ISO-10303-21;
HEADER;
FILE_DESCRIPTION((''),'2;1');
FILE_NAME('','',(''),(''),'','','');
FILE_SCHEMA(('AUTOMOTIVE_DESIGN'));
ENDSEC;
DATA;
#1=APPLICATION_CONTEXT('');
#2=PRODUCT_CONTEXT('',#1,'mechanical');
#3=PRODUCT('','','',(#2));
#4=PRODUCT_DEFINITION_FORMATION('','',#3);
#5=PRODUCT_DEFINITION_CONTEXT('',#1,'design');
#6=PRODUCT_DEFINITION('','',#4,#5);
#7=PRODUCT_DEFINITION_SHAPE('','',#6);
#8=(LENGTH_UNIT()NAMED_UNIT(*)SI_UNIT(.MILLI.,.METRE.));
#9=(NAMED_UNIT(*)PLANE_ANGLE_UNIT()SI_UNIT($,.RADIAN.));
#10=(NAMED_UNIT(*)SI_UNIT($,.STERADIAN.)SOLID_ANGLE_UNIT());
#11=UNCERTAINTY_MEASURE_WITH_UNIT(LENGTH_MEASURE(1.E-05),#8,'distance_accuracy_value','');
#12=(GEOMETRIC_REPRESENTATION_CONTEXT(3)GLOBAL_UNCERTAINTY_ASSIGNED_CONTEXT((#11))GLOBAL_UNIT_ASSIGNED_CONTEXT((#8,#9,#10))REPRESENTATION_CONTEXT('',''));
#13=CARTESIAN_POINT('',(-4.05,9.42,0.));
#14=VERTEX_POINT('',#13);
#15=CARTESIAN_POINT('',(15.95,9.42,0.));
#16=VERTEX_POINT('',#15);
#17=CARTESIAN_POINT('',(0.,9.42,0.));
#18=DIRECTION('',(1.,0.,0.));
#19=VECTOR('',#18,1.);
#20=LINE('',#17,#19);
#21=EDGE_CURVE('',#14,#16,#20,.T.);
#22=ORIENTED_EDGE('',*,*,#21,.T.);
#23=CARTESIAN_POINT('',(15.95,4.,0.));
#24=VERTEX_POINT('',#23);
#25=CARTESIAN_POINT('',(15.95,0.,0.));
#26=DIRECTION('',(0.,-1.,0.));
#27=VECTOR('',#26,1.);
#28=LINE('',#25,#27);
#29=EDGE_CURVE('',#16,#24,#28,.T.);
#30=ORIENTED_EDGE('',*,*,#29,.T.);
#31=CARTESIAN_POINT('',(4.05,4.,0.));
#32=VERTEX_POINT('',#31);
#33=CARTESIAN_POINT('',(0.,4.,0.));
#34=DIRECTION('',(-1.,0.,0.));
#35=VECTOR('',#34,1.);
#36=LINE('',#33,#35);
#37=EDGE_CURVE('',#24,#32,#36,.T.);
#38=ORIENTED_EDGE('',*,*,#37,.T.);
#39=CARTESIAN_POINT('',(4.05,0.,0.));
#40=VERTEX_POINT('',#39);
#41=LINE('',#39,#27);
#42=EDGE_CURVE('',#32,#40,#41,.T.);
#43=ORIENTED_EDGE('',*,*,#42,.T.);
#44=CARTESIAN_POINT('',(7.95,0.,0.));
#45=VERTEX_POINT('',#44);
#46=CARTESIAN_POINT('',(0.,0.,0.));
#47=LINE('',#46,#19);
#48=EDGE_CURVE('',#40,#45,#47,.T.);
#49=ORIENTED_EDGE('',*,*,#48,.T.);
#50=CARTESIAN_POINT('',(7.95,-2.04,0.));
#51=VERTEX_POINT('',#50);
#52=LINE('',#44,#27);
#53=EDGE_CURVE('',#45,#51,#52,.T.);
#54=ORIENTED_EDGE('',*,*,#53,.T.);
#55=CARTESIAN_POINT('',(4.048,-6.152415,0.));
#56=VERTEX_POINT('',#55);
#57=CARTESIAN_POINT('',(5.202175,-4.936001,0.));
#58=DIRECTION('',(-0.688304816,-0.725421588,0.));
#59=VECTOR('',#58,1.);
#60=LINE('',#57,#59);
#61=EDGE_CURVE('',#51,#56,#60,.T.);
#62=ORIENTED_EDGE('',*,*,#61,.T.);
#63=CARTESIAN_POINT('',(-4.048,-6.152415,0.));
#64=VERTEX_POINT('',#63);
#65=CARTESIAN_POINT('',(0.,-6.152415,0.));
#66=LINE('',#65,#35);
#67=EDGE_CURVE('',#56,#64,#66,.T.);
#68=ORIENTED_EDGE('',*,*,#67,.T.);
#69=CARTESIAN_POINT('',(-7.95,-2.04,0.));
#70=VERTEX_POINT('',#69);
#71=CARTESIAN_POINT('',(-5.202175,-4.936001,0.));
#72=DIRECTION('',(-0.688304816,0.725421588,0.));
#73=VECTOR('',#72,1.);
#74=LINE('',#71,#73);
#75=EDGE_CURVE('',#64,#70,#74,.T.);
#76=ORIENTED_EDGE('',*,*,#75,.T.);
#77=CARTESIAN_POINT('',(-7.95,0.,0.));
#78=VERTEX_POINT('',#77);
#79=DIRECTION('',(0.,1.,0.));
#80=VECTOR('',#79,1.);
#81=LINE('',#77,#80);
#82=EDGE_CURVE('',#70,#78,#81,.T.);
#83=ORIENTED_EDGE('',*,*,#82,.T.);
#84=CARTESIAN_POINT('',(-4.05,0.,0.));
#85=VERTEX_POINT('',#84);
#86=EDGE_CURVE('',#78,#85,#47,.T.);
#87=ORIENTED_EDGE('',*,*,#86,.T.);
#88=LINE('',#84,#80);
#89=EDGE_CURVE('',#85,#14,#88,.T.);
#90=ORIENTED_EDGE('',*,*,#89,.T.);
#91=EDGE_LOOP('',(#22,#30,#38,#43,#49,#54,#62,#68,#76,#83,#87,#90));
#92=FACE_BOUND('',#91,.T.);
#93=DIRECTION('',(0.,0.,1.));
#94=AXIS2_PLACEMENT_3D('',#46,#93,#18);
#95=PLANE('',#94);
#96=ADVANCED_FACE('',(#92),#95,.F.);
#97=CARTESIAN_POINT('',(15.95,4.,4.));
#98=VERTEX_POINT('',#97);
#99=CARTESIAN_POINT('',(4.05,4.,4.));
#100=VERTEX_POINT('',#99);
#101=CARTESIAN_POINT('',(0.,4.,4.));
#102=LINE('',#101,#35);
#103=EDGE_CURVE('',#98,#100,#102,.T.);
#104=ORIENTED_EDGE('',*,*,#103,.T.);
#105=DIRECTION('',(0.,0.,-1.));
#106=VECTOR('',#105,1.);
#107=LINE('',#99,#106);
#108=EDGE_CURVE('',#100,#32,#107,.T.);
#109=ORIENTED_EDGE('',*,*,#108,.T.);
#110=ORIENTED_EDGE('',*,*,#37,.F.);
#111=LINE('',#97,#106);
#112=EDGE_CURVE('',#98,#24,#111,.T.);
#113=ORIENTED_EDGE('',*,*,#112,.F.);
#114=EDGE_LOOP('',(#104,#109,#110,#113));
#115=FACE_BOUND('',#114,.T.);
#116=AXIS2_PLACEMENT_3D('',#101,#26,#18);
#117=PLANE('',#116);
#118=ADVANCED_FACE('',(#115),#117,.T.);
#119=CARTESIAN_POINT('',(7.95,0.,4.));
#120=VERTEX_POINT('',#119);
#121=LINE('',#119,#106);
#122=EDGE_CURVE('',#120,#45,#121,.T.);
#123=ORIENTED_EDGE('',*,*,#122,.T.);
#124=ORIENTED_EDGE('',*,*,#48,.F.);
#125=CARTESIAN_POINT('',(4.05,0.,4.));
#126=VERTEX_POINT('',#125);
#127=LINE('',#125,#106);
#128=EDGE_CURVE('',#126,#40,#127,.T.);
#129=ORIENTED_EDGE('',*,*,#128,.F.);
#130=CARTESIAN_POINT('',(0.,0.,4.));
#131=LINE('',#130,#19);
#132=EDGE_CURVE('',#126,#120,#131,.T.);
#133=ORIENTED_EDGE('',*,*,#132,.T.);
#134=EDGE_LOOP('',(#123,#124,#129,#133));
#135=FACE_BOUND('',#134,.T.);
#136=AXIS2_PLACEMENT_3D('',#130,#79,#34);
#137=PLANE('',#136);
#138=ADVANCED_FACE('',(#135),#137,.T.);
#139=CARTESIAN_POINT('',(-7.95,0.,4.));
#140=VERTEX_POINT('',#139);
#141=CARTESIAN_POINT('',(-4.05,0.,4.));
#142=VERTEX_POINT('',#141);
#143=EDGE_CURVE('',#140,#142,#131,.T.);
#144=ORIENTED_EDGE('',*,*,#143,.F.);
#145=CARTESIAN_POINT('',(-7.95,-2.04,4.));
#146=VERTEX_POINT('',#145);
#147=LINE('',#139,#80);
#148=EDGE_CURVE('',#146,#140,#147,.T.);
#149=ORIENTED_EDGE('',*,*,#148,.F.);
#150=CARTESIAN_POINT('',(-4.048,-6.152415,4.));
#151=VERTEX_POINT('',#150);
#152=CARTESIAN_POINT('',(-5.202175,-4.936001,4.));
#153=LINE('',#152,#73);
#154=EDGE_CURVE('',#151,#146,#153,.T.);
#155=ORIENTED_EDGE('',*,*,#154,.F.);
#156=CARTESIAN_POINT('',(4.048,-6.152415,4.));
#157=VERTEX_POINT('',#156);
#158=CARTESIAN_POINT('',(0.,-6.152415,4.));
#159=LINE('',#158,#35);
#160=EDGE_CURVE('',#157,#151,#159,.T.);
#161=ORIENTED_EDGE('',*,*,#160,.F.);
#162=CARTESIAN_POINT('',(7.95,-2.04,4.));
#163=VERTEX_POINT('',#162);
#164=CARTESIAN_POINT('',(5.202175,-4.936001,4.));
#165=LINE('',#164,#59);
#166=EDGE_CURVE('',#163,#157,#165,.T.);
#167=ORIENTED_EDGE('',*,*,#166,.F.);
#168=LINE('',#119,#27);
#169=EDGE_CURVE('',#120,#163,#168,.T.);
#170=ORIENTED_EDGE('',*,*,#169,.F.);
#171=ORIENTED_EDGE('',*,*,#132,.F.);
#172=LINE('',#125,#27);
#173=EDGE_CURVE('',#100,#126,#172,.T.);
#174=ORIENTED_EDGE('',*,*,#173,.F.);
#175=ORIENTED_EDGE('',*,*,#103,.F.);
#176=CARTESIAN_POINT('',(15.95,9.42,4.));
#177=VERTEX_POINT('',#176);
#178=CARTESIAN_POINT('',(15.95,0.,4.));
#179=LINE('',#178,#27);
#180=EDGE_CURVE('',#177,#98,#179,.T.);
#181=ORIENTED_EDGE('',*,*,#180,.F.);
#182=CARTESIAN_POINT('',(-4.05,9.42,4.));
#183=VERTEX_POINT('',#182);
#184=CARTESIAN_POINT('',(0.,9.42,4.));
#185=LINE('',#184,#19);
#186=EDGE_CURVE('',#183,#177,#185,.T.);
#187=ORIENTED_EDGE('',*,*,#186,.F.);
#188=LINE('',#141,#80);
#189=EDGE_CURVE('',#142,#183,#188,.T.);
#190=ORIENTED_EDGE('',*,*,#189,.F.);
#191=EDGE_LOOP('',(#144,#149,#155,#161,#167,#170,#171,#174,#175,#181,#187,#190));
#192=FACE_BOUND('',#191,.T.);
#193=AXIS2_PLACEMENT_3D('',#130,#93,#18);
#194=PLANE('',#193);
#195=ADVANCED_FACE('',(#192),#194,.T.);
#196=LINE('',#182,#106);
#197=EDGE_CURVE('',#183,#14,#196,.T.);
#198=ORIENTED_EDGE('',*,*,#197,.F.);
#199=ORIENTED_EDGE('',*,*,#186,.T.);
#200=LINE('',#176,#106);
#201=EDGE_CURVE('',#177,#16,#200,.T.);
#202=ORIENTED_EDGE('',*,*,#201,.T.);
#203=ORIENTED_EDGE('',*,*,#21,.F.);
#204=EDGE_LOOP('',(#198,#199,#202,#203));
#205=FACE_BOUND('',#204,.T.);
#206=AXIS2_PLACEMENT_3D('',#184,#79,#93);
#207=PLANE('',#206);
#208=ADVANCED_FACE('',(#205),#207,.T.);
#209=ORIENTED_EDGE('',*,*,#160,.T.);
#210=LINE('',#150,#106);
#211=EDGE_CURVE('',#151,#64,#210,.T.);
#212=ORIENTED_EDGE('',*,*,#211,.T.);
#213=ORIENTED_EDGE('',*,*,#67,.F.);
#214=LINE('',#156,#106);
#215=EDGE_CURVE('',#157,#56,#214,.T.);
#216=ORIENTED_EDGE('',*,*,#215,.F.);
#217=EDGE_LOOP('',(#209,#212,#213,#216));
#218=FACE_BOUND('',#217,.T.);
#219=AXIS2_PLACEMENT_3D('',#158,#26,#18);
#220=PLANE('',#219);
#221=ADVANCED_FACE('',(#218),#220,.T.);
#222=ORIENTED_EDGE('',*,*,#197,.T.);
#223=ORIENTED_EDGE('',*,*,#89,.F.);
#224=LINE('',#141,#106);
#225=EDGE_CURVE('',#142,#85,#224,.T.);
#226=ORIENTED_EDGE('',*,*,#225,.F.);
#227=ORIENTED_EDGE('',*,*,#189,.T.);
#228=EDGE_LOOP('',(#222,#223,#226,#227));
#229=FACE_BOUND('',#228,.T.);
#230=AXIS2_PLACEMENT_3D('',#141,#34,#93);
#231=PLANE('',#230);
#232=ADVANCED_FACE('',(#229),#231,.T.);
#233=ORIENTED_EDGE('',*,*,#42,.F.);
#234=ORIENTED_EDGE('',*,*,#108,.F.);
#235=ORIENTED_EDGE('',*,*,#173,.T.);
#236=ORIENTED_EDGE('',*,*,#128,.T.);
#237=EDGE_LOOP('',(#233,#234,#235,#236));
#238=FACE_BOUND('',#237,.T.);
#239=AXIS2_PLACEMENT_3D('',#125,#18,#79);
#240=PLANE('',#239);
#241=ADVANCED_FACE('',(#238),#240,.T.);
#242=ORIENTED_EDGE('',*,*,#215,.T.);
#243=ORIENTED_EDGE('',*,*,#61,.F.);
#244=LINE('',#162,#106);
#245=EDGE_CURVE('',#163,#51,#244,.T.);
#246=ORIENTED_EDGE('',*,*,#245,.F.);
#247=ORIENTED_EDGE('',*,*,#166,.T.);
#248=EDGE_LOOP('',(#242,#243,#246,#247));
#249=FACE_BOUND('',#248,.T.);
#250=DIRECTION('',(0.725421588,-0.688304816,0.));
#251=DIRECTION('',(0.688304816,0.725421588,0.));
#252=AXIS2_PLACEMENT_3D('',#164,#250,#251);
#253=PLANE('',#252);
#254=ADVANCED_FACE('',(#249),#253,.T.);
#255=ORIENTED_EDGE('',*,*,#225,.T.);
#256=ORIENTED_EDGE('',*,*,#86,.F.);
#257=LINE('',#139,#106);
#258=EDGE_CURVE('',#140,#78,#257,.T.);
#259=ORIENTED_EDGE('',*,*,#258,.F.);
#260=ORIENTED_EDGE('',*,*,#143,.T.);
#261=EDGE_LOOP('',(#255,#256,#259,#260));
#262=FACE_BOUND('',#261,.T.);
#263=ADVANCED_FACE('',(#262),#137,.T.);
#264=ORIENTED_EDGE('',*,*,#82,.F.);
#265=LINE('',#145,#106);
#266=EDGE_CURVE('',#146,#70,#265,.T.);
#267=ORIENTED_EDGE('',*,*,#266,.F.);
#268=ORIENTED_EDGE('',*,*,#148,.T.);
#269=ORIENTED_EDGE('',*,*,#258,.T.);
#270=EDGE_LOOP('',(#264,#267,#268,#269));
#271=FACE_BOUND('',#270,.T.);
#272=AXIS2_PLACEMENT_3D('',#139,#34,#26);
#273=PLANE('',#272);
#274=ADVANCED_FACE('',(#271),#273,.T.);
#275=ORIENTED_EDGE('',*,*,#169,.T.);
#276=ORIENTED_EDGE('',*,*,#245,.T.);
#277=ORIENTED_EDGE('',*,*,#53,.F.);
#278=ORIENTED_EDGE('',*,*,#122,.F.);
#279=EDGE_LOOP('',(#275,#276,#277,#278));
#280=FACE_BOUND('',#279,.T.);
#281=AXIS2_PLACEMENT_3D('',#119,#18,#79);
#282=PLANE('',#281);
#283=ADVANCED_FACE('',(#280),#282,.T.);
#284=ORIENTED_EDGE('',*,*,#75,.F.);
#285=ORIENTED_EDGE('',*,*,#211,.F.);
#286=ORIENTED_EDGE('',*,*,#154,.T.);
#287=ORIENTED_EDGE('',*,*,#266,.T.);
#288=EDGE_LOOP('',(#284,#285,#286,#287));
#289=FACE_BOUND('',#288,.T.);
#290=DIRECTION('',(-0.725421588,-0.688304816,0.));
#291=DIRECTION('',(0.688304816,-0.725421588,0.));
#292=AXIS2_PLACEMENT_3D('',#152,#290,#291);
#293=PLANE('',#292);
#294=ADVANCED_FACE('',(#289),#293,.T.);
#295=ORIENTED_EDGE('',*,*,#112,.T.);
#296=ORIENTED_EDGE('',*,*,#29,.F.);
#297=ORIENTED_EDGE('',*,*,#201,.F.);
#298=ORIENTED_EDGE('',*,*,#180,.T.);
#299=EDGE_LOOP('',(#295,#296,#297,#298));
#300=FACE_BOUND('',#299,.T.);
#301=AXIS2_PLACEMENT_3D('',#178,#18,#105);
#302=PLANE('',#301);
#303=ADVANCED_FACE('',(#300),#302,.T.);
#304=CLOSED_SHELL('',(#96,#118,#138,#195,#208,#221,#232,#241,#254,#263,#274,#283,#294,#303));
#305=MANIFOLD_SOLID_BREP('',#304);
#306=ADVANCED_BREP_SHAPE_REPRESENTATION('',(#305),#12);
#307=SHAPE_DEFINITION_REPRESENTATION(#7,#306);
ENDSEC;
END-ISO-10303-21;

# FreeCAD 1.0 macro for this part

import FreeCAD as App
import Part
import Sketcher
from FreeCAD import Vector
Q = App.Units.Quantity


def add_polygon(sketch, points):
    """Adds a closed chain of lines whose ends are joined by coincident constraints."""
    first, n = sketch.GeometryCount, len(points)
    for a, b in zip(points, points[1:] + points[:1]):
        sketch.addGeometry(Part.LineSegment(App.Vector(*a, 0), App.Vector(*b, 0)), False)
    for i in range(n):
        sketch.addConstraint(Sketcher.Constraint("Coincident", first + i, 2, first + (i + 1) % n, 1))

doc = App.newDocument("Part")
params = doc.addObject("Spreadsheet::Sheet", "Params")
for row, (alias, value) in enumerate([
    ("sketch1_width", "20 mm"),
    ("sketch1_height", "4 mm"),
    ("sketch1_width2", "3.9 mm"),
    ("sketch1_width3", "11.9 mm"),
    ("sketch1_height2", "2.04 mm"),
    ("pad1_length", "4 mm"),
], start=1):
    params.set(f"A{row}", alias)
    params.set(f"B{row}", "=" + value)
    params.setAlias(f"B{row}", alias)

body = doc.addObject("PartDesign::Body", "Body")

# Sketch on XY plane
sketch1 = doc.addObject("Sketcher::SketchObject", "Sketch")
body.addObject(sketch1)
sketch1.AttachmentSupport = (doc.XY_Plane, [""])
sketch1.MapMode = "FlatFace"
add_polygon(sketch1, [(-8, 0), (-8, -2), (-4, -6.2), (4, -6.2), (8, -2), (8, 0), (4, 0), (4, 4), (15.9, 4), (15.9, 9.4), (-4, 9.4), (-4, 0)])  # lines 0-11
sketch1.addConstraint(Sketcher.Constraint("Vertical", 0))
sketch1.addConstraint(Sketcher.Constraint("Horizontal", 2))
sketch1.addConstraint(Sketcher.Constraint("Vertical", 4))
sketch1.addConstraint(Sketcher.Constraint("Horizontal", 5))
sketch1.addConstraint(Sketcher.Constraint("Vertical", 6))
sketch1.addConstraint(Sketcher.Constraint("Horizontal", 7))
sketch1.addConstraint(Sketcher.Constraint("Vertical", 8))
sketch1.addConstraint(Sketcher.Constraint("Horizontal", 9))
sketch1.addConstraint(Sketcher.Constraint("Vertical", 10))
sketch1.addConstraint(Sketcher.Constraint("Horizontal", 11))
sketch1.addConstraint(Sketcher.Constraint("Symmetric", 5, 2, 10, 2, -1, 1))
sketch1.addConstraint(Sketcher.Constraint("Symmetric", 0, 2, 3, 2, -2))
sketch1.addConstraint(Sketcher.Constraint("PointOnObject", 4, 2, -1))
sketch1.addConstraint(Sketcher.Constraint("Equal", 1, 3))
sketch1.addConstraint(Sketcher.Constraint("DistanceX", 9, 2, 9, 1, Q("20 mm")))
sketch1.addConstraint(Sketcher.Constraint("DistanceY", 6, 1, 6, 2, Q("4 mm")))
sketch1.addConstraint(Sketcher.Constraint("DistanceX", 5, 2, 5, 1, Q("3.9 mm")))
sketch1.addConstraint(Sketcher.Constraint("DistanceX", 7, 1, 7, 2, Q("11.9 mm")))
sketch1.addConstraint(Sketcher.Constraint("DistanceY", 0, 2, 0, 1, Q("2.04 mm")))
sketch1.addConstraint(Sketcher.Constraint("DistanceY", 8, 1, 8, 2, Q("5.42 mm")))
sketch1.addConstraint(Sketcher.Constraint("DistanceX", 2, 1, 2, 2, Q("8.096 mm")))
sketch1.addConstraint(Sketcher.Constraint("Distance", 1, Q("5.669 mm")))
sketch1.setExpression("Constraints[26]", "Params.sketch1_width")
sketch1.setExpression("Constraints[27]", "Params.sketch1_height")
sketch1.setExpression("Constraints[28]", "Params.sketch1_width2")
sketch1.setExpression("Constraints[29]", "Params.sketch1_width3")
sketch1.setExpression("Constraints[30]", "Params.sketch1_height2")
pad1 = doc.addObject("PartDesign::Pad", "Pad")
body.addObject(pad1)
pad1.Profile = sketch1
pad1.setExpression("Length", "Params.pad1_length")

doc.recompute()
